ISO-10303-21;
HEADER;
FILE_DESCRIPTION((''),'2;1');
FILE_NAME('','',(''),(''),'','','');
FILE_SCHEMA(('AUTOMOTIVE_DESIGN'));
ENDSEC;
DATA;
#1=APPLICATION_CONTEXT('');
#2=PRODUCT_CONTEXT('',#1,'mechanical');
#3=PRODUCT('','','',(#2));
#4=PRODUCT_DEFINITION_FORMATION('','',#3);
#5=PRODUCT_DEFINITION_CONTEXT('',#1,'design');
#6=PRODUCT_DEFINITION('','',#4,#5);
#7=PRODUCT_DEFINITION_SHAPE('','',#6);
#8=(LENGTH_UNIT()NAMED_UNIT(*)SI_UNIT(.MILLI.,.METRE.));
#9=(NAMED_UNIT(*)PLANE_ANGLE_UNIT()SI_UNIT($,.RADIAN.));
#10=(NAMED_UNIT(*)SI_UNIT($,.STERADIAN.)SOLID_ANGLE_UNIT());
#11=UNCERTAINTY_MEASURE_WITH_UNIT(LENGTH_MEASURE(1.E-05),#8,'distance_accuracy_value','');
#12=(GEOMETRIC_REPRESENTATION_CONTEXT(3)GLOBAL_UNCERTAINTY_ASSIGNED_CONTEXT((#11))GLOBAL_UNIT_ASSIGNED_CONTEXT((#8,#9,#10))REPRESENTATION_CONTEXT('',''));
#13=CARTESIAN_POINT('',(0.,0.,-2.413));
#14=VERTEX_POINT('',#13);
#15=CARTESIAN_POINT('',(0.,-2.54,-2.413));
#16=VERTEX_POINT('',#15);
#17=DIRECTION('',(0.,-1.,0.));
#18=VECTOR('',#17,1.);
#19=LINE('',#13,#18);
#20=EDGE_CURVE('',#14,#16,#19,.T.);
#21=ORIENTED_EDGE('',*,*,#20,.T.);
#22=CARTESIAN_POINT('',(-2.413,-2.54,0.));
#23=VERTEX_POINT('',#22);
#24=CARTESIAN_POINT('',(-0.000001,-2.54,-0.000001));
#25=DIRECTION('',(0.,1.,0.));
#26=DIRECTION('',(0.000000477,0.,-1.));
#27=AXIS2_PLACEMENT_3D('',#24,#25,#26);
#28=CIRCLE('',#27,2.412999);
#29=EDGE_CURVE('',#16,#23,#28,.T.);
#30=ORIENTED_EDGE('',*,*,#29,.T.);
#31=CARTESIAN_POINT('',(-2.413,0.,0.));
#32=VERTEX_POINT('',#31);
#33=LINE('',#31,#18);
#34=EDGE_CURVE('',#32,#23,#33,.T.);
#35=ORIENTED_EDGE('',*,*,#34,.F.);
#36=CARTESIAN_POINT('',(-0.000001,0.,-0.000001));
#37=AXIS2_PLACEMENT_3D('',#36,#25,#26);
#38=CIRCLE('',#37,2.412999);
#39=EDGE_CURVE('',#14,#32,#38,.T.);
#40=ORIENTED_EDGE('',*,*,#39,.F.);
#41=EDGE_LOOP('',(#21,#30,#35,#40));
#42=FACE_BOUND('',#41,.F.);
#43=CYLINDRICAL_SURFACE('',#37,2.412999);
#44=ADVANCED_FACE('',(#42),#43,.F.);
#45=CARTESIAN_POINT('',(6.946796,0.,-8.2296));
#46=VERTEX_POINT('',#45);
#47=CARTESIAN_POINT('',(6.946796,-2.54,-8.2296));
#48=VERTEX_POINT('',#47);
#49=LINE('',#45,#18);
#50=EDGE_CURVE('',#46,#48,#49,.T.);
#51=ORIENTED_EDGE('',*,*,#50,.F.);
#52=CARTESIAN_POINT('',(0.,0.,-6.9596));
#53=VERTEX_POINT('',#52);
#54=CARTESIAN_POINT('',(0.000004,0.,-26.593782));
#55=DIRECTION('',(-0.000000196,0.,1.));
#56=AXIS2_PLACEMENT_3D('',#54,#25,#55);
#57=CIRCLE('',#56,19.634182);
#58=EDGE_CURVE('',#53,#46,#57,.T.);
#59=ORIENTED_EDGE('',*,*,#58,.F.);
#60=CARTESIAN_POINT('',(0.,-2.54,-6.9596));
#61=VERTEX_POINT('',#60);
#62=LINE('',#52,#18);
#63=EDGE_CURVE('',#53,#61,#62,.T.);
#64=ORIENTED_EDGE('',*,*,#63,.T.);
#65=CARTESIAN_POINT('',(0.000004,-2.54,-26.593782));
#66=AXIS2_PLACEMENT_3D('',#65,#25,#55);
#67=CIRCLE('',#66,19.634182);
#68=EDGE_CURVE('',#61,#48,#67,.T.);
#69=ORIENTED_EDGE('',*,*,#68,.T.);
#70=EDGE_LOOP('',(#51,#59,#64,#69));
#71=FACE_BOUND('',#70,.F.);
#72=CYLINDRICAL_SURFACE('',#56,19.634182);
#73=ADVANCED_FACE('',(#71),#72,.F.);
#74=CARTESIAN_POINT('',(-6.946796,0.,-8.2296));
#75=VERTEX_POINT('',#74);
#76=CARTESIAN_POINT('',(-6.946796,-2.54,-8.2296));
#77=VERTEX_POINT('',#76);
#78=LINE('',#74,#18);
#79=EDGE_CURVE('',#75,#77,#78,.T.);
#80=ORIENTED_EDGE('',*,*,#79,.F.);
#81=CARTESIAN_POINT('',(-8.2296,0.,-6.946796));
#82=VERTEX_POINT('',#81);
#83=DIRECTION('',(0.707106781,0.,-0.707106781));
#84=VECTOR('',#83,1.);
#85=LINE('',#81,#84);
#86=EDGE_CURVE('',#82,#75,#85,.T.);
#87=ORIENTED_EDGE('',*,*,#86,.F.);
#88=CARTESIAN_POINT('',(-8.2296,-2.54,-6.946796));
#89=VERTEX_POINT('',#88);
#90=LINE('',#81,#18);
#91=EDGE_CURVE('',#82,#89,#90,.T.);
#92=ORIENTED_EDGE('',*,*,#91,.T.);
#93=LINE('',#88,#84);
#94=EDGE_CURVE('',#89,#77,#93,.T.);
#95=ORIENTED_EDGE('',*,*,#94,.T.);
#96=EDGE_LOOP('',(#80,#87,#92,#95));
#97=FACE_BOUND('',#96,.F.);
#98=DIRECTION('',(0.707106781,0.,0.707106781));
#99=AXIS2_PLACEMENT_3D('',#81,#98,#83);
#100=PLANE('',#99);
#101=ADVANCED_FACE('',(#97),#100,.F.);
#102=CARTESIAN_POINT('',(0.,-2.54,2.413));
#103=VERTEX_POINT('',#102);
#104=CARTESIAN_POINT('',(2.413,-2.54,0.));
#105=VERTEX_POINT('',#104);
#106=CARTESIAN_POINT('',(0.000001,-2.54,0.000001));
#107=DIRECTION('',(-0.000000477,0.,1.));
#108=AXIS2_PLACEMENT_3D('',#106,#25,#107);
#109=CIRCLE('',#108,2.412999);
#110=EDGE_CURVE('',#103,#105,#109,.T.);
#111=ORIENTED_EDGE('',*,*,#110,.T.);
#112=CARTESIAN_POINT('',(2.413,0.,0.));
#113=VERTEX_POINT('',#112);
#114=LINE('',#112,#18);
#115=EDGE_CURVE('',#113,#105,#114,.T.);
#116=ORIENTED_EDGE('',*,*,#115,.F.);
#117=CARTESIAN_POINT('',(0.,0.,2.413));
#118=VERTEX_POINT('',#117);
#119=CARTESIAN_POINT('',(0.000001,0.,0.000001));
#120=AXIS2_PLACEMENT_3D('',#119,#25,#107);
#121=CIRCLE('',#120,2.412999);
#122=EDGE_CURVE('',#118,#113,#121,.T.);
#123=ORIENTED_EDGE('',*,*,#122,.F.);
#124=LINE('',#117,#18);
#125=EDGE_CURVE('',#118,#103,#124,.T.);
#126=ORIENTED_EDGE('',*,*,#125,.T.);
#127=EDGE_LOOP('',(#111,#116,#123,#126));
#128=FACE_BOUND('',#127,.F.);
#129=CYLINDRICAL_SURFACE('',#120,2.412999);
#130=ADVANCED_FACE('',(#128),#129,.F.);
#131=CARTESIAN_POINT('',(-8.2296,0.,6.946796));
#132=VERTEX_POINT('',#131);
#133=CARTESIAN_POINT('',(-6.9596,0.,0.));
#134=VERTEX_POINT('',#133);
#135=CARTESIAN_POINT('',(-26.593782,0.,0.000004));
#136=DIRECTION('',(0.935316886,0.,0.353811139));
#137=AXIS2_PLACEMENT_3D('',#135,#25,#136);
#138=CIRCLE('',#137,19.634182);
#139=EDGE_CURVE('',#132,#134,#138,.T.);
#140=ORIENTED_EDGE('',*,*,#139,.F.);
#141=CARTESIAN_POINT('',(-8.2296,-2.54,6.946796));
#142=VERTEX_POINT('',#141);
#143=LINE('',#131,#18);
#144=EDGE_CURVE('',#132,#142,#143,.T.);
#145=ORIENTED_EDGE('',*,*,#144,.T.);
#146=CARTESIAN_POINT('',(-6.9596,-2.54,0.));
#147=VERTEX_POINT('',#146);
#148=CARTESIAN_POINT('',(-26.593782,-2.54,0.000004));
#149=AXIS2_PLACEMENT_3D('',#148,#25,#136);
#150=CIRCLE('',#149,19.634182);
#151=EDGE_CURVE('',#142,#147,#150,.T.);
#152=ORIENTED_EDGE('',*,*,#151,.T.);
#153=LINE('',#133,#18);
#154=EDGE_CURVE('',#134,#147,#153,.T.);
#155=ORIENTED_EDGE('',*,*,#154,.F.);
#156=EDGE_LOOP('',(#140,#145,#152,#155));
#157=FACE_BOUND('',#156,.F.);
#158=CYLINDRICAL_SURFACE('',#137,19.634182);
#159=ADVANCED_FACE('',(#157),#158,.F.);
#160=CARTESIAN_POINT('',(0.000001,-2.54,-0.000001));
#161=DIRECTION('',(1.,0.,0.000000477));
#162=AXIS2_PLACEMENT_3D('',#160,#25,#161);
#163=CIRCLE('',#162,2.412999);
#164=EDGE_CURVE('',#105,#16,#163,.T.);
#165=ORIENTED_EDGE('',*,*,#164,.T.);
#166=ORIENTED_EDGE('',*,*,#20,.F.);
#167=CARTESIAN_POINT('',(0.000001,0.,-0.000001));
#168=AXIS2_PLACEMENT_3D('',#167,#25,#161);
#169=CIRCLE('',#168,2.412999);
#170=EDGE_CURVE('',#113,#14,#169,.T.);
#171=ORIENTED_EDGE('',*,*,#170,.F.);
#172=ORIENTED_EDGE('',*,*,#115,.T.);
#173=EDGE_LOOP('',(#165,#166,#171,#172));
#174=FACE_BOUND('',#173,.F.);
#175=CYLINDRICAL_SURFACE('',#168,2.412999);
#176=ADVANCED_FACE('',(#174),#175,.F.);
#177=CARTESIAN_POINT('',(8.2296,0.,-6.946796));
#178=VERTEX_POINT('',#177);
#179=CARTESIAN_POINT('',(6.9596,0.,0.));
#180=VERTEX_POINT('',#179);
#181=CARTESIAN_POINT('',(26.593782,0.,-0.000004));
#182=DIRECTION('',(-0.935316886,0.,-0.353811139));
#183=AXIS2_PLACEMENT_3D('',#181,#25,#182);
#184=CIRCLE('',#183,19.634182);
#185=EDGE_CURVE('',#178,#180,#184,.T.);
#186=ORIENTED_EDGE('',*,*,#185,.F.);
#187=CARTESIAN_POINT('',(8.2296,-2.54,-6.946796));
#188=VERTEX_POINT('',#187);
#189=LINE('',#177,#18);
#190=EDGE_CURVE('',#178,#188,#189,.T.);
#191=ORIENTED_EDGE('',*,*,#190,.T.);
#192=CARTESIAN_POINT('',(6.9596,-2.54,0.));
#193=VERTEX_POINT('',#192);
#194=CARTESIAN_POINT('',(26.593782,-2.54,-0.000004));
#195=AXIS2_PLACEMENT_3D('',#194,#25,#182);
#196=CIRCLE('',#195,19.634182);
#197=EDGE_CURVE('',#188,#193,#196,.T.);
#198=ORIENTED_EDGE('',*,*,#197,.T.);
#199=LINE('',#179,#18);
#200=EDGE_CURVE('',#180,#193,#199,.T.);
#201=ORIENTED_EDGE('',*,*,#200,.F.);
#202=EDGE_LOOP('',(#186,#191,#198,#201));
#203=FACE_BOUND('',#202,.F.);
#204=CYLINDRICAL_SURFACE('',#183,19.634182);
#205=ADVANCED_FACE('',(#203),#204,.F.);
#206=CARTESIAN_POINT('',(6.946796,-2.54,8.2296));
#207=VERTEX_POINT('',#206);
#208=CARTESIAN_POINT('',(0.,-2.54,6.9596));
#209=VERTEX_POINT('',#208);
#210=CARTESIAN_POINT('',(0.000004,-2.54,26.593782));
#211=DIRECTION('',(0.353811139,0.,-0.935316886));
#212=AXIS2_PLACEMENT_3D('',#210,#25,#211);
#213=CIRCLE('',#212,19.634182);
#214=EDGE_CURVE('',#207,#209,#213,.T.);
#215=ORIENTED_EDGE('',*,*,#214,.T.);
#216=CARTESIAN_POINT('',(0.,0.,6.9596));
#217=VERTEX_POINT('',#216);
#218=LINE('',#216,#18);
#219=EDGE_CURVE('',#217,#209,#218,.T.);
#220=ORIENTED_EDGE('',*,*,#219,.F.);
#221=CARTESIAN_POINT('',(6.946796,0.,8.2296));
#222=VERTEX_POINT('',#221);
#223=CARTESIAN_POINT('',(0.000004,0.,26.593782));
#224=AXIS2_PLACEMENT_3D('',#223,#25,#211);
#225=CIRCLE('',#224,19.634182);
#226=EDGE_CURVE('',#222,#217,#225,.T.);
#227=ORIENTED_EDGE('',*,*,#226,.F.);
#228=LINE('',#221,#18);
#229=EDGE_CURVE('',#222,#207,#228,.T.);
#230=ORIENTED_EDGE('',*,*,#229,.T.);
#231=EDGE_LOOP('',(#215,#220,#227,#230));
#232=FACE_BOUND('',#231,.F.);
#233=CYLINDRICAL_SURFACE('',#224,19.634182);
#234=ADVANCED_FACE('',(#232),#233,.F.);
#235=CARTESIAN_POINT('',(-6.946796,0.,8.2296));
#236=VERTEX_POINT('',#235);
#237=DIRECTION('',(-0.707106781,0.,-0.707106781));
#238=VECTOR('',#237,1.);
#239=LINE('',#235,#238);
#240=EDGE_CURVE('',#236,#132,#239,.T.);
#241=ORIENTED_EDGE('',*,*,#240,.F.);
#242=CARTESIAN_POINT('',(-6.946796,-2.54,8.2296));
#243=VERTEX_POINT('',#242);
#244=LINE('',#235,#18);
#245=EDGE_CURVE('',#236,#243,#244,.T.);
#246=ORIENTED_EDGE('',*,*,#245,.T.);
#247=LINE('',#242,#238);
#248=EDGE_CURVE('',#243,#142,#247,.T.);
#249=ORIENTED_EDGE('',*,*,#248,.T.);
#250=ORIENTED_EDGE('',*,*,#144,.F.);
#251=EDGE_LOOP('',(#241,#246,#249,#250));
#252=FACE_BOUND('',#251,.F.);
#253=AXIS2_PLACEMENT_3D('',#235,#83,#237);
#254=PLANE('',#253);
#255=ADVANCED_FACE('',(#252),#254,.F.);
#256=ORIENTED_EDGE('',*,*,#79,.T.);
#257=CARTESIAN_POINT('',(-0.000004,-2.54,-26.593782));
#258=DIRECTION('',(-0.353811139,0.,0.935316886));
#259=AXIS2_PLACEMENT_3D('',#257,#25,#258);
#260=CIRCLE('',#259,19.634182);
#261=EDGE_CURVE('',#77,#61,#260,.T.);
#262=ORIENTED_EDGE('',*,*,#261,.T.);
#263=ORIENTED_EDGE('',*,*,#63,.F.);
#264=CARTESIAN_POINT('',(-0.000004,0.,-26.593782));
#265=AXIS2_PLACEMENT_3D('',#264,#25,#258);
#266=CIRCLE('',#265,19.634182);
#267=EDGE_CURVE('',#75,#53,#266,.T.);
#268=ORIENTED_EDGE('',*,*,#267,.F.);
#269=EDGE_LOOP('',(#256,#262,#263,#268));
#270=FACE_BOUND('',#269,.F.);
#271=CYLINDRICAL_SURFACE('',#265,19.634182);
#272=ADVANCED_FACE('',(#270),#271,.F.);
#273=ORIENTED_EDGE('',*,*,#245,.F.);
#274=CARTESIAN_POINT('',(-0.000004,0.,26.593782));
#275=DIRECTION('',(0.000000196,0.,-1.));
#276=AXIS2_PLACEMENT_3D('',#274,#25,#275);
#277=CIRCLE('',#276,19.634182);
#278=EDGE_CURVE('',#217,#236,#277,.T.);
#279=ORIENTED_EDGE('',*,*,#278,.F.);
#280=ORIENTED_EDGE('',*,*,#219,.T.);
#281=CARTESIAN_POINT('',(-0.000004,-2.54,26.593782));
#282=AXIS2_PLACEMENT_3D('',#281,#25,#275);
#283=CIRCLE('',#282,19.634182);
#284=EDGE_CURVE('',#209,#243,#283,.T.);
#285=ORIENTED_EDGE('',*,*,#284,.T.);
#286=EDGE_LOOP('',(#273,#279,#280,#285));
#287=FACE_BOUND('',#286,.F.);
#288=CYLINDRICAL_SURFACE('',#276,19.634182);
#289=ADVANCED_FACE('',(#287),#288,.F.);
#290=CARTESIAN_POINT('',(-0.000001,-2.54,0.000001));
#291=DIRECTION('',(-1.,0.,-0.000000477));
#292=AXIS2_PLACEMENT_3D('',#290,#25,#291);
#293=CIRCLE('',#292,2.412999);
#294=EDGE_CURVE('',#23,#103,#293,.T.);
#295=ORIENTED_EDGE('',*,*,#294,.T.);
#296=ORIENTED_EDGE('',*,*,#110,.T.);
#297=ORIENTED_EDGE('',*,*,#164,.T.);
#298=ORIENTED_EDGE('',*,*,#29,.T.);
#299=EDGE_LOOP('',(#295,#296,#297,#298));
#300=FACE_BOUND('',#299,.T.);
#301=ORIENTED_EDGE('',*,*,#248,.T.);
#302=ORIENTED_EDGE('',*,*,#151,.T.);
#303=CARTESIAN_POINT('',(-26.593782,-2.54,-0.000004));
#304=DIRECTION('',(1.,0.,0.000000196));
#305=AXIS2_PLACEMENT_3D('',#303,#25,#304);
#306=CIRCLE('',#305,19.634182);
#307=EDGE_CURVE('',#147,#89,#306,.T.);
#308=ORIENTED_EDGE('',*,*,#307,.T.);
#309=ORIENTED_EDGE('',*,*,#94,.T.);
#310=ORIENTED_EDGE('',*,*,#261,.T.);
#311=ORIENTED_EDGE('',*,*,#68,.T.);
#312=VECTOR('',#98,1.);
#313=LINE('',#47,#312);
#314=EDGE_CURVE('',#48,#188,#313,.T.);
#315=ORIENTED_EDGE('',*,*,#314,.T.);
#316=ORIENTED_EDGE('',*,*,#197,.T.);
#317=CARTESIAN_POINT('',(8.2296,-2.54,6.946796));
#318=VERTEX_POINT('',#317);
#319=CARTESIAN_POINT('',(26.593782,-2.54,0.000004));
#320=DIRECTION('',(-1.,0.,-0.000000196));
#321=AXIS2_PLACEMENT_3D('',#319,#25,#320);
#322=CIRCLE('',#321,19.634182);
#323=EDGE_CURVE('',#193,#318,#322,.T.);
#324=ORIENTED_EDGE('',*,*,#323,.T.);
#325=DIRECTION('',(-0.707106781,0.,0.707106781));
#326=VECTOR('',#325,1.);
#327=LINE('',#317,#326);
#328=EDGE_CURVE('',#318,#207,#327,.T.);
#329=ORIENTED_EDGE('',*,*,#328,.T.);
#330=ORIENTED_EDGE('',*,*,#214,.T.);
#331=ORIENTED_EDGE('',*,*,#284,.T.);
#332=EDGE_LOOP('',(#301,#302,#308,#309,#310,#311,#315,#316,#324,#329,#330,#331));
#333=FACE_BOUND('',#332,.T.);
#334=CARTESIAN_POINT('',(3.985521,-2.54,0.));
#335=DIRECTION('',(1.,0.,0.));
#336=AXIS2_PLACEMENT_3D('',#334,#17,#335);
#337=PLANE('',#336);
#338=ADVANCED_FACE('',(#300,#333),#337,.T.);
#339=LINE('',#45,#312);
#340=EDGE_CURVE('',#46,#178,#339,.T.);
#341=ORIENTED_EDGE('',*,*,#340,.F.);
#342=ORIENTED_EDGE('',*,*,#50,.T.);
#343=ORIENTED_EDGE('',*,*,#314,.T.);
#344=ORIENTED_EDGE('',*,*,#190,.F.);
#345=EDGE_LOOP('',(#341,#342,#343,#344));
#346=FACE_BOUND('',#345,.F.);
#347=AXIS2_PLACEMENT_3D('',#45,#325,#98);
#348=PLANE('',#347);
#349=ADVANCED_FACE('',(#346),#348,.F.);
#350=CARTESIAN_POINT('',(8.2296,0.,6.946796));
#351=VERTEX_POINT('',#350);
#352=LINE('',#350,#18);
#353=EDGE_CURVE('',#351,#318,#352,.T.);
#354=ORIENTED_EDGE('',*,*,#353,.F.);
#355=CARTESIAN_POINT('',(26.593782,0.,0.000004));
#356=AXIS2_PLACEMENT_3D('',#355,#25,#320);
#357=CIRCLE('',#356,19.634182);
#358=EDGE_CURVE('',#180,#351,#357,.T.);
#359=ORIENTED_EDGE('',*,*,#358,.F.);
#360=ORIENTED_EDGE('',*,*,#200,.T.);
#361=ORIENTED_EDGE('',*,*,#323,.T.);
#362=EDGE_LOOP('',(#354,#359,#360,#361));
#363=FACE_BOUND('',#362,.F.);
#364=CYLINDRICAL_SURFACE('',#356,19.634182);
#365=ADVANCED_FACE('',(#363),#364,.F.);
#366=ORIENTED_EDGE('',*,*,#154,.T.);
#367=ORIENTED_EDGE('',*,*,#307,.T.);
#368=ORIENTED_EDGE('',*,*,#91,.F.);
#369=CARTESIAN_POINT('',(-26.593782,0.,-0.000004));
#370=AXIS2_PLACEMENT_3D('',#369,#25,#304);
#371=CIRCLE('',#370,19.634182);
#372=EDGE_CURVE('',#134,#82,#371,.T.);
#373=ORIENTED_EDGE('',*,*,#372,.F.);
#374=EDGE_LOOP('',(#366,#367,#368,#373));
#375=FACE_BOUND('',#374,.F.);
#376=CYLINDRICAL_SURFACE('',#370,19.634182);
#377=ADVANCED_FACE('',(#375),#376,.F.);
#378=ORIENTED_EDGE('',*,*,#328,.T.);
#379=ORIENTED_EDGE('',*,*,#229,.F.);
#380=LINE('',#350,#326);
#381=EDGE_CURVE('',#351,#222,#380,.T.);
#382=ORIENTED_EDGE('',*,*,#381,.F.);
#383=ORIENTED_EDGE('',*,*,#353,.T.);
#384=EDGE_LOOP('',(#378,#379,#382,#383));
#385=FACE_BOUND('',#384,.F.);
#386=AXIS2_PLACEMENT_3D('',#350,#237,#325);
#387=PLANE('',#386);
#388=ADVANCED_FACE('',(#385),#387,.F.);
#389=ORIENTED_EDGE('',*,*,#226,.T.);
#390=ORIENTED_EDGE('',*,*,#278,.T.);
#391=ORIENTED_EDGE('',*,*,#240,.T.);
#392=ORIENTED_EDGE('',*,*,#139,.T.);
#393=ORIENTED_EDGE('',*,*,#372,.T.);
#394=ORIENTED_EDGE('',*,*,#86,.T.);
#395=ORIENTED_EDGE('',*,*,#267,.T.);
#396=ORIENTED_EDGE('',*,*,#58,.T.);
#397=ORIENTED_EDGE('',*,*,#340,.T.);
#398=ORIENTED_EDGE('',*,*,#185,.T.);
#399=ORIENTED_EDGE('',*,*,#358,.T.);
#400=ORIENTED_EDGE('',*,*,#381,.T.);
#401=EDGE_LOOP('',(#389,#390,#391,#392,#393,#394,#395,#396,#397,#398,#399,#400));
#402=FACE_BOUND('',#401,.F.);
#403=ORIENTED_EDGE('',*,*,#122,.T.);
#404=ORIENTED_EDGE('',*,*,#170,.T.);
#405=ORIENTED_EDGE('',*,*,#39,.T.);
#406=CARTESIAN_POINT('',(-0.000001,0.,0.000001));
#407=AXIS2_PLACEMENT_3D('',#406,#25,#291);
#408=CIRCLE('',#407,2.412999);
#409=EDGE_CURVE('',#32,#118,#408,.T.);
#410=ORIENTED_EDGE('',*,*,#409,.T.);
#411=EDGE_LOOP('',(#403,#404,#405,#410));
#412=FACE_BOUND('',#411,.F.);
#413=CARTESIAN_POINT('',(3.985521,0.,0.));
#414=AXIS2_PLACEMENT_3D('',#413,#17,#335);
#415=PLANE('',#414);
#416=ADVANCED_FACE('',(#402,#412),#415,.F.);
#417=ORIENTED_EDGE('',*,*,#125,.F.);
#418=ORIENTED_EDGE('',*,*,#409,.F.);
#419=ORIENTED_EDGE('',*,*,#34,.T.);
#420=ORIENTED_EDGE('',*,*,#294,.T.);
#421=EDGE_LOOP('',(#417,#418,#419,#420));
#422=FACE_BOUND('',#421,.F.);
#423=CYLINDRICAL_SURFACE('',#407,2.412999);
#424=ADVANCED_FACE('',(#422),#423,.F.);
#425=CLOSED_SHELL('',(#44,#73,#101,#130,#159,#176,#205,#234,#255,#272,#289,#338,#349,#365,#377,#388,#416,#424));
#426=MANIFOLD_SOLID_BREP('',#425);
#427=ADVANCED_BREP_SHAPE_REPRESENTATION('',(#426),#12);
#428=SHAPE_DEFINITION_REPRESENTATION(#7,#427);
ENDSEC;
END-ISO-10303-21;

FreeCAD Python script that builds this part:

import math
import FreeCAD as App
import Part
import Sketcher
from FreeCAD import Vector
Q = App.Units.Quantity

doc = App.newDocument("Part")
body = doc.addObject("PartDesign::Body", "Body")

# Sketch on XZ plane
sketch1 = body.newObject("Sketcher::SketchObject", "Sketch")
sketch1.AttachmentSupport = (doc.getObject("XZ_Plane"), [""])
sketch1.MapMode = "FlatFace"
sketch1.addGeometry([
    Part.ArcOfCircle(Part.Circle(Vector(0, -26.6, 0), Vector(0, 0, 1), 19.6), math.radians(69), math.radians(90)),  # 0
    Part.LineSegment(Vector(6.9, -8.2, 0), Vector(8.2, -6.9, 0)),  # 1
    Part.ArcOfCircle(Part.Circle(Vector(26.6, 0, 0), Vector(0, 0, 1), 19.6), math.radians(180), math.radians(201)),  # 2
    Part.ArcOfCircle(Part.Circle(Vector(26.6, 0, 0), Vector(0, 0, 1), 19.6), math.radians(159), math.radians(180)),  # 3
    Part.LineSegment(Vector(8.2, 6.9, 0), Vector(6.9, 8.2, 0)),  # 4
    Part.ArcOfCircle(Part.Circle(Vector(0, 26.6, 0), Vector(0, 0, 1), 19.6), math.radians(-90), math.radians(-69)),  # 5
    Part.ArcOfCircle(Part.Circle(Vector(0, 26.6, 0), Vector(0, 0, 1), 19.6), math.radians(-111), math.radians(-90)),  # 6
    Part.LineSegment(Vector(-6.9, 8.2, 0), Vector(-8.2, 6.9, 0)),  # 7
    Part.ArcOfCircle(Part.Circle(Vector(-26.6, 0, 0), Vector(0, 0, 1), 19.6), math.radians(0), math.radians(21)),  # 8
    Part.ArcOfCircle(Part.Circle(Vector(-26.6, 0, 0), Vector(0, 0, 1), 19.6), math.radians(-21), math.radians(0)),  # 9
    Part.LineSegment(Vector(-8.2, -6.9, 0), Vector(-6.9, -8.2, 0)),  # 10
    Part.ArcOfCircle(Part.Circle(Vector(0, -26.6, 0), Vector(0, 0, 1), 19.6), math.radians(90), math.radians(111)),  # 11
    Part.ArcOfCircle(Part.Circle(Vector(0, 0, 0), Vector(0, 0, 1), 2.4), math.radians(0), math.radians(90)),  # 12
    Part.ArcOfCircle(Part.Circle(Vector(0, 0, 0), Vector(0, 0, 1), 2.4), math.radians(-90), math.radians(0)),  # 13
    Part.ArcOfCircle(Part.Circle(Vector(0, 0, 0), Vector(0, 0, 1), 2.4), math.radians(180), math.radians(270)),  # 14
    Part.ArcOfCircle(Part.Circle(Vector(0, 0, 0), Vector(0, 0, 1), 2.4), math.radians(90), math.radians(180)),  # 15
], False)
sketch1.addConstraint([
    Sketcher.Constraint("Coincident", 0, 1, 1, 1),
    Sketcher.Constraint("Coincident", 1, 2, 2, 2),
    Sketcher.Constraint("Tangent", 2, 1, 3, 2),
    Sketcher.Constraint("Coincident", 3, 1, 4, 1),
    Sketcher.Constraint("Coincident", 4, 2, 5, 2),
    Sketcher.Constraint("Tangent", 5, 1, 6, 2),
    Sketcher.Constraint("Coincident", 6, 1, 7, 1),
    Sketcher.Constraint("Coincident", 7, 2, 8, 2),
    Sketcher.Constraint("Tangent", 8, 1, 9, 2),
    Sketcher.Constraint("Coincident", 9, 1, 10, 1),
    Sketcher.Constraint("Coincident", 10, 2, 11, 2),
    Sketcher.Constraint("Tangent", 11, 1, 0, 2),
    Sketcher.Constraint("Tangent", 12, 1, 13, 2),
    Sketcher.Constraint("Tangent", 13, 1, 14, 2),
    Sketcher.Constraint("Tangent", 14, 1, 15, 2),
    Sketcher.Constraint("Tangent", 15, 1, 12, 2),
    Sketcher.Constraint("Coincident", 12, 3, -1, 1),
    Sketcher.Constraint("Equal", 0, 2),
    Sketcher.Constraint("Equal", 2, 3),
    Sketcher.Constraint("Equal", 3, 5),
    Sketcher.Constraint("Equal", 5, 6),
    Sketcher.Constraint("Equal", 6, 8),
    Sketcher.Constraint("Equal", 8, 9),
    Sketcher.Constraint("Equal", 9, 11),
    Sketcher.Constraint("Equal", 12, 13),
    Sketcher.Constraint("Symmetric", 0, 3, 5, 3, -1, 1),
    Sketcher.Constraint("Symmetric", 2, 3, 8, 3, -1, 1),
    Sketcher.Constraint("Symmetric", 4, 2, 6, 1, -2),
    Sketcher.Constraint("Symmetric", 3, 1, 7, 2, -2),
    Sketcher.Constraint("PointOnObject", 2, 1, -1),
    Sketcher.Constraint("PointOnObject", 5, 1, -2),
    Sketcher.Constraint("PointOnObject", 8, 1, -1),
    Sketcher.Constraint("PointOnObject", 11, 1, -2),
    Sketcher.Constraint("PointOnObject", 12, 1, -1),
    Sketcher.Constraint("PointOnObject", 13, 1, -2),
    Sketcher.Constraint("PointOnObject", 14, 1, -1),
    Sketcher.Constraint("PointOnObject", 15, 1, -2),
    Sketcher.Constraint("Perpendicular", 1, 4),
    Sketcher.Constraint("Perpendicular", 4, 7),
    Sketcher.Constraint("Perpendicular", 7, 10),
    Sketcher.Constraint("Horizontal", 1, 2, 9, 1),
    Sketcher.Constraint("Vertical", 1, 2, 3, 1),
    Sketcher.Constraint("Radius", 12, Q("0.095 in")),
    Sketcher.Constraint("DistanceX", 2, 1, 1, 2, Q("0.05 in")),
    Sketcher.Constraint("DistanceY", 5, 1, 4, 2, Q("0.05 in")),
    Sketcher.Constraint("DistanceY", 0, 1, -1, 1, Q("0.324 in")),
    Sketcher.Constraint("Radius", 0, Q("19.634182 mm")),
])
pad1 = body.newObject("PartDesign::Pad", "Pad")
pad1.Profile = sketch1
pad1.Length = Q("0.1 in")

doc.recompute()
